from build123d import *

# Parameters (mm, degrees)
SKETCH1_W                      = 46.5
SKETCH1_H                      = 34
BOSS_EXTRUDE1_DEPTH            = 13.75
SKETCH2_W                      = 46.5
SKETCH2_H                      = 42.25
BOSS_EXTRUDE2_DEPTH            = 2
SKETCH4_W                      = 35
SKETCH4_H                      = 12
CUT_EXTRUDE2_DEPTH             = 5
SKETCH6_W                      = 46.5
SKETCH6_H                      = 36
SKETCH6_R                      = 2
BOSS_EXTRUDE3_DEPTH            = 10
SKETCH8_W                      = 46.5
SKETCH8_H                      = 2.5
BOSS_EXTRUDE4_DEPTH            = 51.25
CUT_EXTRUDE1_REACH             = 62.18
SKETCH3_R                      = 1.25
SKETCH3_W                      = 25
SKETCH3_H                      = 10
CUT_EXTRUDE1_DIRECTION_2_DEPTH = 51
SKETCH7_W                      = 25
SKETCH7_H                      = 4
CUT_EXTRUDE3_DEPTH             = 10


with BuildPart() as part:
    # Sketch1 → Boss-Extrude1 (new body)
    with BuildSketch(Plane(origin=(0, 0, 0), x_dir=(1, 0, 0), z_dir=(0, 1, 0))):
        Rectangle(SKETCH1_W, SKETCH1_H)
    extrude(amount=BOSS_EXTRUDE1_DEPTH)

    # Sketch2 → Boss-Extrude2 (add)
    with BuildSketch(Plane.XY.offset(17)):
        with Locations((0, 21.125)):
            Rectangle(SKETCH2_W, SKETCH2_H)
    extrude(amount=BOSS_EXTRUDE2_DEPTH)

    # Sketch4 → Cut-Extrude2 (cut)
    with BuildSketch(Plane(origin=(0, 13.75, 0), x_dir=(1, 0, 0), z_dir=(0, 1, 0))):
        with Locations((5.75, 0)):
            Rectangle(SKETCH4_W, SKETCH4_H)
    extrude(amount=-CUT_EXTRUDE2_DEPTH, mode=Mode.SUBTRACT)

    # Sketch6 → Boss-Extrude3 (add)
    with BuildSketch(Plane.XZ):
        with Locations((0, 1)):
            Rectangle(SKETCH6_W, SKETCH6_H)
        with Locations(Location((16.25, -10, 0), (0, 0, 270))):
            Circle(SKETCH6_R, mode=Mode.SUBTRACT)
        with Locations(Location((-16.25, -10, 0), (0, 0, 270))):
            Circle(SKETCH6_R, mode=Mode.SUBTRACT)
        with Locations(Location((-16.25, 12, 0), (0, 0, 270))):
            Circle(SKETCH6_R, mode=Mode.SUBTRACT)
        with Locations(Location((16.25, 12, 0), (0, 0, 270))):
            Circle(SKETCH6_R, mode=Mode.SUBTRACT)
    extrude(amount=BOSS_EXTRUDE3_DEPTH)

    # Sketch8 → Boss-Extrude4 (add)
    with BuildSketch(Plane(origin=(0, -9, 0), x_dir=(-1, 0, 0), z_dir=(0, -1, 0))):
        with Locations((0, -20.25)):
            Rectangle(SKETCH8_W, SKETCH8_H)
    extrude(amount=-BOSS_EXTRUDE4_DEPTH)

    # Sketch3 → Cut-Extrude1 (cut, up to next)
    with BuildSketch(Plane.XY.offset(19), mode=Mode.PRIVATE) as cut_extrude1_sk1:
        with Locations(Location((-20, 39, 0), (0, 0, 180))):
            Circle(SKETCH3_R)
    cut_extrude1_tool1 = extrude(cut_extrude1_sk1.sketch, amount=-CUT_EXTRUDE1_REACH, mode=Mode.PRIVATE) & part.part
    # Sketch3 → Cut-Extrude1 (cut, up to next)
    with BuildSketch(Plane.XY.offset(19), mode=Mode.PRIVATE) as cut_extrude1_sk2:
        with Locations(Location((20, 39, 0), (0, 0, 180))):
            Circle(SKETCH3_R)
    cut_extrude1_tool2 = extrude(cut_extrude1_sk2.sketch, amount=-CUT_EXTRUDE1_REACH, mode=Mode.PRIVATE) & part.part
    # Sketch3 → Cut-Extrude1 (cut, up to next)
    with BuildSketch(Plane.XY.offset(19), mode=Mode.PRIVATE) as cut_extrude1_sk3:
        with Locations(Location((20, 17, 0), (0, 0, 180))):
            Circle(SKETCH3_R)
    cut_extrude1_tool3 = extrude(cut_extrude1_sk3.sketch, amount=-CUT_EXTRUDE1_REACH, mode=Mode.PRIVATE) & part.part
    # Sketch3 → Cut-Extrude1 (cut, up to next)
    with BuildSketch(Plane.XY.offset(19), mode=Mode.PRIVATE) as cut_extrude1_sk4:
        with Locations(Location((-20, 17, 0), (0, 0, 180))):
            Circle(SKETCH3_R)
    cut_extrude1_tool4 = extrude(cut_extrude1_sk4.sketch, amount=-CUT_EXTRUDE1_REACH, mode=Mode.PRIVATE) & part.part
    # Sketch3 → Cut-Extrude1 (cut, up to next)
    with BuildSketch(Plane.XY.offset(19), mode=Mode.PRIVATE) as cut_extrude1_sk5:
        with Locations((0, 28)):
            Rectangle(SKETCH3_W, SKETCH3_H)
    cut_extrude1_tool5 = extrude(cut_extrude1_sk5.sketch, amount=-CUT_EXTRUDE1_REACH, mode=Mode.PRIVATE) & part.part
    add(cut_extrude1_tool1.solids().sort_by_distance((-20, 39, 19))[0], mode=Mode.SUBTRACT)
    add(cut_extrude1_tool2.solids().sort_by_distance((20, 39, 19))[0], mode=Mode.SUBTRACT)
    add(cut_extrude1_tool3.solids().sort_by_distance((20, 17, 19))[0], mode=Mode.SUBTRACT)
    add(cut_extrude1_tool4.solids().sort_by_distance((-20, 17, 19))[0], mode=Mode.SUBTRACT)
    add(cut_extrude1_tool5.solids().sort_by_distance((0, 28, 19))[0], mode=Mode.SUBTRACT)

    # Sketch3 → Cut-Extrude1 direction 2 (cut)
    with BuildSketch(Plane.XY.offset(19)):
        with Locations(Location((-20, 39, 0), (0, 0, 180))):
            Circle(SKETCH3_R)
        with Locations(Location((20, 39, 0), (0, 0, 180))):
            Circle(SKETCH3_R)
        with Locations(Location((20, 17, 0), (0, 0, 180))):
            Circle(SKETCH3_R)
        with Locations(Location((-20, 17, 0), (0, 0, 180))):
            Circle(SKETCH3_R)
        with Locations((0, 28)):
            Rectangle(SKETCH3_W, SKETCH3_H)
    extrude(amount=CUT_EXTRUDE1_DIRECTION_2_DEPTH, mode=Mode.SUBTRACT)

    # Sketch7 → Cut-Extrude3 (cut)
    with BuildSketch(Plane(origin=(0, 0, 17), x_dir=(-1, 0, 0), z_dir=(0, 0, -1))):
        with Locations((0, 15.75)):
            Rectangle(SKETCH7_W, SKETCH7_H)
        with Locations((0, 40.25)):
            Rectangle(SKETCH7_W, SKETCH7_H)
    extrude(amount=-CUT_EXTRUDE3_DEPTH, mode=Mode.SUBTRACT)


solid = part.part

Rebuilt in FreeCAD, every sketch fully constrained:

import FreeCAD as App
import Part
import Sketcher

V = App.Vector
Q = App.Units.Quantity

doc = App.newDocument("Part")
params = doc.addObject("Spreadsheet::Sheet", "Params")
for row, (alias, value) in enumerate([
    ("sketch1_height", "34 mm"),
    ("sketch1_width", "46.5 mm"),
    ("pad1_length", "13.75 mm"),
    ("sketch2_width", "46.5 mm"),
    ("sketch2_height", "42.25 mm"),
    ("pad2_length", "2 mm"),
    ("sketch3_width", "35 mm"),
    ("sketch3_height", "12 mm"),
    ("pocket1_length", "5 mm"),
    ("sketch4_diameter", "4 mm"),
    ("sketch4_height", "36 mm"),
    ("sketch4_width", "46.5 mm"),
    ("pad3_length", "10 mm"),
    ("sketch5_width", "46.5 mm"),
    ("sketch5_height", "2.5 mm"),
    ("pad4_length", "51.25 mm"),
    ("sketch6_diameter", "2.5 mm"),
    ("sketch7_diameter", "2.5 mm"),
    ("sketch8_diameter", "2.5 mm"),
    ("sketch9_diameter", "2.5 mm"),
    ("sketch10_width", "25 mm"),
    ("sketch10_height", "10 mm"),
    ("sketch11_diameter", "2.5 mm"),
    ("sketch11_width", "25 mm"),
    ("sketch11_height", "10 mm"),
    ("pocket7_length", "51 mm"),
    ("sketch12_width", "25 mm"),
    ("sketch12_height", "4 mm"),
    ("pocket8_length", "10 mm"),
], start=1):
    params.set(f"A{row}", alias)
    params.set(f"B{row}", "=" + value)
    params.setAlias(f"B{row}", alias)

body = doc.addObject("PartDesign::Body", "Body")

# Sketch on XZ plane
sketch1 = doc.addObject("Sketcher::SketchObject", "Sketch")
body.addObject(sketch1)
sketch1.AttachmentSupport = (doc.XZ_Plane, [""])
sketch1.MapMode = "FlatFace"
sketch1.addGeometry([
    Part.LineSegment(V(-23, -17, 0), V(-23, 17, 0)),
    Part.LineSegment(V(-23, 17, 0), V(23, 17, 0)),
    Part.LineSegment(V(23, 17, 0), V(23, -17, 0)),
    Part.LineSegment(V(23, -17, 0), V(-23, -17, 0)),
], False)
sketch1.addConstraint([
    Sketcher.Constraint("Coincident", 0, 2, 1, 1),
    Sketcher.Constraint("Coincident", 1, 2, 2, 1),
    Sketcher.Constraint("Coincident", 2, 2, 3, 1),
    Sketcher.Constraint("Coincident", 3, 2, 0, 1),
    Sketcher.Constraint("Vertical", 0),
    Sketcher.Constraint("Horizontal", 1),
    Sketcher.Constraint("Vertical", 2),
    Sketcher.Constraint("Horizontal", 3),
    Sketcher.Constraint("Symmetric", 0, 2, 2, 2, -1, 1),
    Sketcher.Constraint("DistanceY", 0, 1, 0, 2, Q("34 mm")),
    Sketcher.Constraint("DistanceX", 1, 1, 1, 2, Q("46.5 mm")),
])
sketch1.setExpression("Constraints[9]", "Params.sketch1_height")
sketch1.setExpression("Constraints[10]", "Params.sketch1_width")
pad1 = doc.addObject("PartDesign::Pad", "Pad")
body.addObject(pad1)
pad1.Profile = sketch1
pad1.setExpression("Length", "Params.pad1_length")
pad1.Reversed = True

# Sketch on XY plane
sketch2 = doc.addObject("Sketcher::SketchObject", "Sketch001")
body.addObject(sketch2)
sketch2.AttachmentSupport = (doc.XY_Plane, [""])
sketch2.MapMode = "FlatFace"
sketch2.AttachmentOffset = App.Placement(V(0, 0, 17), App.Rotation())
sketch2.addGeometry([
    Part.LineSegment(V(-23, 42, 0), V(-23, 0, 0)),
    Part.LineSegment(V(-23, 0, 0), V(23, 0, 0)),
    Part.LineSegment(V(23, 0, 0), V(23, 42, 0)),
    Part.LineSegment(V(23, 42, 0), V(-23, 42, 0)),
], False)
sketch2.addConstraint([
    Sketcher.Constraint("Coincident", 0, 2, 1, 1),
    Sketcher.Constraint("Coincident", 1, 2, 2, 1),
    Sketcher.Constraint("Coincident", 2, 2, 3, 1),
    Sketcher.Constraint("Coincident", 3, 2, 0, 1),
    Sketcher.Constraint("Vertical", 0),
    Sketcher.Constraint("Horizontal", 1),
    Sketcher.Constraint("Vertical", 2),
    Sketcher.Constraint("Horizontal", 3),
    Sketcher.Constraint("Symmetric", 0, 2, 1, 2, -1, 1),
    Sketcher.Constraint("DistanceX", 1, 1, 1, 2, Q("46.5 mm")),
    Sketcher.Constraint("DistanceY", 0, 2, 0, 1, Q("42.25 mm")),
])
sketch2.setExpression("Constraints[9]", "Params.sketch2_width")
sketch2.setExpression("Constraints[10]", "Params.sketch2_height")
pad2 = doc.addObject("PartDesign::Pad", "Pad001")
body.addObject(pad2)
pad2.Profile = sketch2
pad2.setExpression("Length", "Params.pad2_length")

# Sketch on XZ plane
sketch3 = doc.addObject("Sketcher::SketchObject", "Sketch002")
body.addObject(sketch3)
sketch3.AttachmentSupport = (doc.XZ_Plane, [""])
sketch3.MapMode = "FlatFace"
sketch3.AttachmentOffset = App.Placement(V(0, 0, -13.75), App.Rotation())
sketch3.addGeometry([
    Part.LineSegment(V(-12, -6, 0), V(-12, 6, 0)),
    Part.LineSegment(V(-12, 6, 0), V(23, 6, 0)),
    Part.LineSegment(V(23, 6, 0), V(23, -6, 0)),
    Part.LineSegment(V(23, -6, 0), V(-12, -6, 0)),
], False)
sketch3.addConstraint([
    Sketcher.Constraint("Coincident", 0, 2, 1, 1),
    Sketcher.Constraint("Coincident", 1, 2, 2, 1),
    Sketcher.Constraint("Coincident", 2, 2, 3, 1),
    Sketcher.Constraint("Coincident", 3, 2, 0, 1),
    Sketcher.Constraint("Vertical", 0),
    Sketcher.Constraint("Horizontal", 1),
    Sketcher.Constraint("Vertical", 2),
    Sketcher.Constraint("Horizontal", 3),
    Sketcher.Constraint("DistanceX", 1, 1, 1, 2, Q("35 mm")),
    Sketcher.Constraint("DistanceY", 0, 1, 0, 2, Q("12 mm")),
    Sketcher.Constraint("DistanceY", -1, 1, 0, 2, Q("6 mm")),
    Sketcher.Constraint("DistanceX", 0, 2, -1, 1, Q("11.75 mm")),
])
sketch3.setExpression("Constraints[8]", "Params.sketch3_width")
sketch3.setExpression("Constraints[9]", "Params.sketch3_height")
pocket1 = doc.addObject("PartDesign::Pocket", "Pocket")
body.addObject(pocket1)
pocket1.Profile = sketch3
pocket1.setExpression("Length", "Params.pocket1_length")
pocket1.Reversed = True

# Sketch on XZ plane
sketch4 = doc.addObject("Sketcher::SketchObject", "Sketch003")
body.addObject(sketch4)
sketch4.AttachmentSupport = (doc.XZ_Plane, [""])
sketch4.MapMode = "FlatFace"
sketch4.addGeometry([
    Part.LineSegment(V(-23.2, 19, 0), V(-23.2, -17, 0)),  # 0
    Part.LineSegment(V(-23.2, -17, 0), V(23.2, -17, 0)),  # 1
    Part.LineSegment(V(23.2, -17, 0), V(23.2, 19, 0)),  # 2
    Part.LineSegment(V(23.2, 19, 0), V(-23.2, 19, 0)),  # 3
    Part.Circle(V(-16.2, -10, 0), V(0, 0, 1), 2),  # 4
    Part.Circle(V(16.2, -10, 0), V(0, 0, 1), 2),  # 5
    Part.Circle(V(-16.2, 12, 0), V(0, 0, 1), 2),  # 6
    Part.Circle(V(16.2, 12, 0), V(0, 0, 1), 2),  # 7
], False)
sketch4.addConstraint([
    Sketcher.Constraint("Coincident", 0, 2, 1, 1),
    Sketcher.Constraint("Coincident", 1, 2, 2, 1),
    Sketcher.Constraint("Coincident", 2, 2, 3, 1),
    Sketcher.Constraint("Coincident", 3, 2, 0, 1),
    Sketcher.Constraint("Vertical", 0),
    Sketcher.Constraint("Horizontal", 1),
    Sketcher.Constraint("Vertical", 2),
    Sketcher.Constraint("Horizontal", 3),
    Sketcher.Constraint("Equal", 4, 5),
    Sketcher.Constraint("Equal", 5, 6),
    Sketcher.Constraint("Equal", 6, 7),
    Sketcher.Constraint("Symmetric", 4, 3, 5, 3, -2),
    Sketcher.Constraint("Symmetric", 6, 3, 7, 3, -2),
    Sketcher.Constraint("Vertical", 4, 3, 6, 3),
    Sketcher.Constraint("Diameter", 4, Q("4 mm")),
    Sketcher.Constraint("DistanceY", 0, 2, 0, 1, Q("36 mm")),
    Sketcher.Constraint("DistanceX", 1, 1, 1, 2, Q("46.5 mm")),
    Sketcher.Constraint("DistanceY", 4, 3, -1, 1, Q("10 mm")),
    Sketcher.Constraint("DistanceY", -1, 1, 6, 3, Q("12 mm")),
    Sketcher.Constraint("DistanceY", 0, 2, -1, 1, Q("17 mm")),
    Sketcher.Constraint("DistanceX", 0, 2, 4, 3, Q("7 mm")),
    Sketcher.Constraint("DistanceX", 5, 3, 1, 2, Q("7 mm")),
])
sketch4.setExpression("Constraints[14]", "Params.sketch4_diameter")
sketch4.setExpression("Constraints[15]", "Params.sketch4_height")
sketch4.setExpression("Constraints[16]", "Params.sketch4_width")
pad3 = doc.addObject("PartDesign::Pad", "Pad002")
body.addObject(pad3)
pad3.Profile = sketch4
pad3.setExpression("Length", "Params.pad3_length")

# Sketch on XZ plane
sketch5 = doc.addObject("Sketcher::SketchObject", "Sketch004")
body.addObject(sketch5)
sketch5.AttachmentSupport = (doc.XZ_Plane, [""])
sketch5.MapMode = "FlatFace"
sketch5.AttachmentOffset = App.Placement(V(0, 0, 9), App.Rotation())
sketch5.addGeometry([
    Part.LineSegment(V(23.2, 19, 0), V(23.2, 21.5, 0)),
    Part.LineSegment(V(23.2, 21.5, 0), V(-23.2, 21.5, 0)),
    Part.LineSegment(V(-23.2, 21.5, 0), V(-23.2, 19, 0)),
    Part.LineSegment(V(-23.2, 19, 0), V(23.2, 19, 0)),
], False)
sketch5.addConstraint([
    Sketcher.Constraint("Coincident", 0, 2, 1, 1),
    Sketcher.Constraint("Coincident", 1, 2, 2, 1),
    Sketcher.Constraint("Coincident", 2, 2, 3, 1),
    Sketcher.Constraint("Coincident", 3, 2, 0, 1),
    Sketcher.Constraint("Vertical", 0),
    Sketcher.Constraint("Horizontal", 1),
    Sketcher.Constraint("Vertical", 2),
    Sketcher.Constraint("Horizontal", 3),
    Sketcher.Constraint("DistanceX", 1, 2, 1, 1, Q("46.5 mm")),
    Sketcher.Constraint("DistanceY", 0, 1, 0, 2, Q("2.5 mm")),
    Sketcher.Constraint("DistanceY", -1, 1, 2, 2, Q("19 mm")),
    Sketcher.Constraint("DistanceX", -1, 1, 0, 2, Q("23.25 mm")),
])
sketch5.setExpression("Constraints[8]", "Params.sketch5_width")
sketch5.setExpression("Constraints[9]", "Params.sketch5_height")
pad4 = doc.addObject("PartDesign::Pad", "Pad003")
body.addObject(pad4)
pad4.Profile = sketch5
pad4.setExpression("Length", "Params.pad4_length")
pad4.Reversed = True

# Sketch on XY plane
sketch6 = doc.addObject("Sketcher::SketchObject", "Sketch005")
body.addObject(sketch6)
sketch6.AttachmentSupport = (doc.XY_Plane, [""])
sketch6.MapMode = "FlatFace"
sketch6.AttachmentOffset = App.Placement(V(0, 0, 19), App.Rotation())
sketch6.addGeometry(Part.Circle(V(-20, 39, 0), V(0, 0, 1), 1.2), False)
sketch6.addConstraint([
    Sketcher.Constraint("Diameter", 0, Q("2.5 mm")),
    Sketcher.Constraint("DistanceX", 0, 3, -1, 1, Q("20 mm")),
    Sketcher.Constraint("DistanceY", -1, 1, 0, 3, Q("39 mm")),
])
sketch6.setExpression("Constraints[0]", "Params.sketch6_diameter")
pocket2 = doc.addObject("PartDesign::Pocket", "Pocket001")
body.addObject(pocket2)
pocket2.Profile = sketch6
pocket2.Type = "UpToFirst"

# Sketch on XY plane
sketch7 = doc.addObject("Sketcher::SketchObject", "Sketch006")
body.addObject(sketch7)
sketch7.AttachmentSupport = (doc.XY_Plane, [""])
sketch7.MapMode = "FlatFace"
sketch7.AttachmentOffset = App.Placement(V(0, 0, 19), App.Rotation())
sketch7.addGeometry(Part.Circle(V(20, 39, 0), V(0, 0, 1), 1.2), False)
sketch7.addConstraint([
    Sketcher.Constraint("Diameter", 0, Q("2.5 mm")),
    Sketcher.Constraint("DistanceX", -1, 1, 0, 3, Q("20 mm")),
    Sketcher.Constraint("DistanceY", -1, 1, 0, 3, Q("39 mm")),
])
sketch7.setExpression("Constraints[0]", "Params.sketch7_diameter")
pocket3 = doc.addObject("PartDesign::Pocket", "Pocket002")
body.addObject(pocket3)
pocket3.Profile = sketch7
pocket3.Type = "UpToFirst"

# Sketch on XY plane
sketch8 = doc.addObject("Sketcher::SketchObject", "Sketch007")
body.addObject(sketch8)
sketch8.AttachmentSupport = (doc.XY_Plane, [""])
sketch8.MapMode = "FlatFace"
sketch8.AttachmentOffset = App.Placement(V(0, 0, 19), App.Rotation())
sketch8.addGeometry(Part.Circle(V(20, 17, 0), V(0, 0, 1), 1.2), False)
sketch8.addConstraint([
    Sketcher.Constraint("Diameter", 0, Q("2.5 mm")),
    Sketcher.Constraint("DistanceX", -1, 1, 0, 3, Q("20 mm")),
    Sketcher.Constraint("DistanceY", -1, 1, 0, 3, Q("17 mm")),
])
sketch8.setExpression("Constraints[0]", "Params.sketch8_diameter")
pocket4 = doc.addObject("PartDesign::Pocket", "Pocket003")
body.addObject(pocket4)
pocket4.Profile = sketch8
pocket4.Type = "UpToFirst"

# Sketch on XY plane
sketch9 = doc.addObject("Sketcher::SketchObject", "Sketch008")
body.addObject(sketch9)
sketch9.AttachmentSupport = (doc.XY_Plane, [""])
sketch9.MapMode = "FlatFace"
sketch9.AttachmentOffset = App.Placement(V(0, 0, 19), App.Rotation())
sketch9.addGeometry(Part.Circle(V(-20, 17, 0), V(0, 0, 1), 1.2), False)
sketch9.addConstraint([
    Sketcher.Constraint("Diameter", 0, Q("2.5 mm")),
    Sketcher.Constraint("DistanceX", 0, 3, -1, 1, Q("20 mm")),
    Sketcher.Constraint("DistanceY", -1, 1, 0, 3, Q("17 mm")),
])
sketch9.setExpression("Constraints[0]", "Params.sketch9_diameter")
pocket5 = doc.addObject("PartDesign::Pocket", "Pocket004")
body.addObject(pocket5)
pocket5.Profile = sketch9
pocket5.Type = "UpToFirst"

# Sketch on XY plane
sketch10 = doc.addObject("Sketcher::SketchObject", "Sketch009")
body.addObject(sketch10)
sketch10.AttachmentSupport = (doc.XY_Plane, [""])
sketch10.MapMode = "FlatFace"
sketch10.AttachmentOffset = App.Placement(V(0, 0, 19), App.Rotation())
sketch10.addGeometry([
    Part.LineSegment(V(-12, 33, 0), V(-12, 23, 0)),
    Part.LineSegment(V(-12, 23, 0), V(12, 23, 0)),
    Part.LineSegment(V(12, 23, 0), V(12, 33, 0)),
    Part.LineSegment(V(12, 33, 0), V(-12, 33, 0)),
], False)
sketch10.addConstraint([
    Sketcher.Constraint("Coincident", 0, 2, 1, 1),
    Sketcher.Constraint("Coincident", 1, 2, 2, 1),
    Sketcher.Constraint("Coincident", 2, 2, 3, 1),
    Sketcher.Constraint("Coincident", 3, 2, 0, 1),
    Sketcher.Constraint("Vertical", 0),
    Sketcher.Constraint("Horizontal", 1),
    Sketcher.Constraint("Vertical", 2),
    Sketcher.Constraint("Horizontal", 3),
    Sketcher.Constraint("DistanceX", 1, 1, 1, 2, Q("25 mm")),
    Sketcher.Constraint("DistanceY", 0, 2, 0, 1, Q("10 mm")),
    Sketcher.Constraint("DistanceY", -1, 1, 0, 2, Q("23 mm")),
    Sketcher.Constraint("DistanceX", 0, 2, -1, 1, Q("12.5 mm")),
])
sketch10.setExpression("Constraints[8]", "Params.sketch10_width")
sketch10.setExpression("Constraints[9]", "Params.sketch10_height")
pocket6 = doc.addObject("PartDesign::Pocket", "Pocket005")
body.addObject(pocket6)
pocket6.Profile = sketch10
pocket6.Type = "UpToFirst"

# Sketch on XY plane
sketch11 = doc.addObject("Sketcher::SketchObject", "Sketch010")
body.addObject(sketch11)
sketch11.AttachmentSupport = (doc.XY_Plane, [""])
sketch11.MapMode = "FlatFace"
sketch11.AttachmentOffset = App.Placement(V(0, 0, 19), App.Rotation())
sketch11.addGeometry([
    Part.Circle(V(-20, 39, 0), V(0, 0, 1), 1.2),  # 0
    Part.Circle(V(20, 39, 0), V(0, 0, 1), 1.2),  # 1
    Part.Circle(V(20, 17, 0), V(0, 0, 1), 1.2),  # 2
    Part.Circle(V(-20, 17, 0), V(0, 0, 1), 1.2),  # 3
    Part.LineSegment(V(-12.5, 33, 0), V(-12.5, 23, 0)),  # 4
    Part.LineSegment(V(-12.5, 23, 0), V(12.5, 23, 0)),  # 5
    Part.LineSegment(V(12.5, 23, 0), V(12.5, 33, 0)),  # 6
    Part.LineSegment(V(12.5, 33, 0), V(-12.5, 33, 0)),  # 7
], False)
sketch11.addConstraint([
    Sketcher.Constraint("Coincident", 4, 2, 5, 1),
    Sketcher.Constraint("Coincident", 5, 2, 6, 1),
    Sketcher.Constraint("Coincident", 6, 2, 7, 1),
    Sketcher.Constraint("Coincident", 7, 2, 4, 1),
    Sketcher.Constraint("Vertical", 4),
    Sketcher.Constraint("Horizontal", 5),
    Sketcher.Constraint("Vertical", 6),
    Sketcher.Constraint("Horizontal", 7),
    Sketcher.Constraint("Equal", 0, 1),
    Sketcher.Constraint("Equal", 1, 2),
    Sketcher.Constraint("Equal", 2, 3),
    Sketcher.Constraint("Symmetric", 0, 3, 1, 3, -2),
    Sketcher.Constraint("Symmetric", 2, 3, 3, 3, -2),
    Sketcher.Constraint("Vertical", 1, 3, 2, 3),
    Sketcher.Constraint("Diameter", 0, Q("2.5 mm")),
    Sketcher.Constraint("DistanceX", 5, 1, 5, 2, Q("25 mm")),
    Sketcher.Constraint("DistanceY", 4, 2, 4, 1, Q("10 mm")),
    Sketcher.Constraint("DistanceX", 0, 3, -1, 1, Q("20 mm")),
    Sketcher.Constraint("DistanceY", -1, 1, 0, 3, Q("39 mm")),
    Sketcher.Constraint("DistanceY", -1, 1, 2, 3, Q("17 mm")),
    Sketcher.Constraint("DistanceY", -1, 1, 4, 2, Q("23 mm")),
    Sketcher.Constraint("DistanceX", 4, 2, -1, 1, Q("12.5 mm")),
])
sketch11.setExpression("Constraints[14]", "Params.sketch11_diameter")
sketch11.setExpression("Constraints[15]", "Params.sketch11_width")
sketch11.setExpression("Constraints[16]", "Params.sketch11_height")
pocket7 = doc.addObject("PartDesign::Pocket", "Pocket006")
body.addObject(pocket7)
pocket7.Profile = sketch11
pocket7.setExpression("Length", "Params.pocket7_length")
pocket7.Reversed = True

# Sketch on XY plane
sketch12 = doc.addObject("Sketcher::SketchObject", "Sketch011")
body.addObject(sketch12)
sketch12.AttachmentSupport = (doc.XY_Plane, [""])
sketch12.MapMode = "FlatFace"
sketch12.AttachmentOffset = App.Placement(V(0, 0, 17), App.Rotation())
sketch12.addGeometry([
    Part.LineSegment(V(12.5, 17.8, 0), V(12.5, 13.8, 0)),  # 0
    Part.LineSegment(V(12.5, 13.8, 0), V(-12.5, 13.8, 0)),  # 1
    Part.LineSegment(V(-12.5, 13.8, 0), V(-12.5, 17.8, 0)),  # 2
    Part.LineSegment(V(-12.5, 17.8, 0), V(12.5, 17.8, 0)),  # 3
    Part.LineSegment(V(12.5, 42.2, 0), V(12.5, 38.2, 0)),  # 4
    Part.LineSegment(V(12.5, 38.2, 0), V(-12.5, 38.2, 0)),  # 5
    Part.LineSegment(V(-12.5, 38.2, 0), V(-12.5, 42.2, 0)),  # 6
    Part.LineSegment(V(-12.5, 42.2, 0), V(12.5, 42.2, 0)),  # 7
], False)
sketch12.addConstraint([
    Sketcher.Constraint("Coincident", 0, 2, 1, 1),
    Sketcher.Constraint("Coincident", 1, 2, 2, 1),
    Sketcher.Constraint("Coincident", 2, 2, 3, 1),
    Sketcher.Constraint("Coincident", 3, 2, 0, 1),
    Sketcher.Constraint("Coincident", 4, 2, 5, 1),
    Sketcher.Constraint("Coincident", 5, 2, 6, 1),
    Sketcher.Constraint("Coincident", 6, 2, 7, 1),
    Sketcher.Constraint("Coincident", 7, 2, 4, 1),
    Sketcher.Constraint("Vertical", 0),
    Sketcher.Constraint("Horizontal", 1),
    Sketcher.Constraint("Vertical", 2),
    Sketcher.Constraint("Horizontal", 3),
    Sketcher.Constraint("Vertical", 4),
    Sketcher.Constraint("Horizontal", 5),
    Sketcher.Constraint("Vertical", 6),
    Sketcher.Constraint("Horizontal", 7),
    Sketcher.Constraint("Vertical", 3, 2, 4, 2),
    Sketcher.Constraint("Vertical", 2, 2, 5, 2),
    Sketcher.Constraint("Equal", 2, 4),
    Sketcher.Constraint("DistanceX", 1, 2, 1, 1, Q("25 mm")),
    Sketcher.Constraint("DistanceY", 0, 2, 0, 1, Q("4 mm")),
    Sketcher.Constraint("DistanceX", -1, 1, 0, 2, Q("12.5 mm")),
    Sketcher.Constraint("DistanceY", 3, 2, 4, 2, Q("20.5 mm")),
    Sketcher.Constraint("DistanceY", -1, 1, 0, 2, Q("13.75 mm")),
])
sketch12.setExpression("Constraints[19]", "Params.sketch12_width")
sketch12.setExpression("Constraints[20]", "Params.sketch12_height")
pocket8 = doc.addObject("PartDesign::Pocket", "Pocket007")
body.addObject(pocket8)
pocket8.Profile = sketch12
pocket8.setExpression("Length", "Params.pocket8_length")
pocket8.Reversed = True

doc.recompute()
